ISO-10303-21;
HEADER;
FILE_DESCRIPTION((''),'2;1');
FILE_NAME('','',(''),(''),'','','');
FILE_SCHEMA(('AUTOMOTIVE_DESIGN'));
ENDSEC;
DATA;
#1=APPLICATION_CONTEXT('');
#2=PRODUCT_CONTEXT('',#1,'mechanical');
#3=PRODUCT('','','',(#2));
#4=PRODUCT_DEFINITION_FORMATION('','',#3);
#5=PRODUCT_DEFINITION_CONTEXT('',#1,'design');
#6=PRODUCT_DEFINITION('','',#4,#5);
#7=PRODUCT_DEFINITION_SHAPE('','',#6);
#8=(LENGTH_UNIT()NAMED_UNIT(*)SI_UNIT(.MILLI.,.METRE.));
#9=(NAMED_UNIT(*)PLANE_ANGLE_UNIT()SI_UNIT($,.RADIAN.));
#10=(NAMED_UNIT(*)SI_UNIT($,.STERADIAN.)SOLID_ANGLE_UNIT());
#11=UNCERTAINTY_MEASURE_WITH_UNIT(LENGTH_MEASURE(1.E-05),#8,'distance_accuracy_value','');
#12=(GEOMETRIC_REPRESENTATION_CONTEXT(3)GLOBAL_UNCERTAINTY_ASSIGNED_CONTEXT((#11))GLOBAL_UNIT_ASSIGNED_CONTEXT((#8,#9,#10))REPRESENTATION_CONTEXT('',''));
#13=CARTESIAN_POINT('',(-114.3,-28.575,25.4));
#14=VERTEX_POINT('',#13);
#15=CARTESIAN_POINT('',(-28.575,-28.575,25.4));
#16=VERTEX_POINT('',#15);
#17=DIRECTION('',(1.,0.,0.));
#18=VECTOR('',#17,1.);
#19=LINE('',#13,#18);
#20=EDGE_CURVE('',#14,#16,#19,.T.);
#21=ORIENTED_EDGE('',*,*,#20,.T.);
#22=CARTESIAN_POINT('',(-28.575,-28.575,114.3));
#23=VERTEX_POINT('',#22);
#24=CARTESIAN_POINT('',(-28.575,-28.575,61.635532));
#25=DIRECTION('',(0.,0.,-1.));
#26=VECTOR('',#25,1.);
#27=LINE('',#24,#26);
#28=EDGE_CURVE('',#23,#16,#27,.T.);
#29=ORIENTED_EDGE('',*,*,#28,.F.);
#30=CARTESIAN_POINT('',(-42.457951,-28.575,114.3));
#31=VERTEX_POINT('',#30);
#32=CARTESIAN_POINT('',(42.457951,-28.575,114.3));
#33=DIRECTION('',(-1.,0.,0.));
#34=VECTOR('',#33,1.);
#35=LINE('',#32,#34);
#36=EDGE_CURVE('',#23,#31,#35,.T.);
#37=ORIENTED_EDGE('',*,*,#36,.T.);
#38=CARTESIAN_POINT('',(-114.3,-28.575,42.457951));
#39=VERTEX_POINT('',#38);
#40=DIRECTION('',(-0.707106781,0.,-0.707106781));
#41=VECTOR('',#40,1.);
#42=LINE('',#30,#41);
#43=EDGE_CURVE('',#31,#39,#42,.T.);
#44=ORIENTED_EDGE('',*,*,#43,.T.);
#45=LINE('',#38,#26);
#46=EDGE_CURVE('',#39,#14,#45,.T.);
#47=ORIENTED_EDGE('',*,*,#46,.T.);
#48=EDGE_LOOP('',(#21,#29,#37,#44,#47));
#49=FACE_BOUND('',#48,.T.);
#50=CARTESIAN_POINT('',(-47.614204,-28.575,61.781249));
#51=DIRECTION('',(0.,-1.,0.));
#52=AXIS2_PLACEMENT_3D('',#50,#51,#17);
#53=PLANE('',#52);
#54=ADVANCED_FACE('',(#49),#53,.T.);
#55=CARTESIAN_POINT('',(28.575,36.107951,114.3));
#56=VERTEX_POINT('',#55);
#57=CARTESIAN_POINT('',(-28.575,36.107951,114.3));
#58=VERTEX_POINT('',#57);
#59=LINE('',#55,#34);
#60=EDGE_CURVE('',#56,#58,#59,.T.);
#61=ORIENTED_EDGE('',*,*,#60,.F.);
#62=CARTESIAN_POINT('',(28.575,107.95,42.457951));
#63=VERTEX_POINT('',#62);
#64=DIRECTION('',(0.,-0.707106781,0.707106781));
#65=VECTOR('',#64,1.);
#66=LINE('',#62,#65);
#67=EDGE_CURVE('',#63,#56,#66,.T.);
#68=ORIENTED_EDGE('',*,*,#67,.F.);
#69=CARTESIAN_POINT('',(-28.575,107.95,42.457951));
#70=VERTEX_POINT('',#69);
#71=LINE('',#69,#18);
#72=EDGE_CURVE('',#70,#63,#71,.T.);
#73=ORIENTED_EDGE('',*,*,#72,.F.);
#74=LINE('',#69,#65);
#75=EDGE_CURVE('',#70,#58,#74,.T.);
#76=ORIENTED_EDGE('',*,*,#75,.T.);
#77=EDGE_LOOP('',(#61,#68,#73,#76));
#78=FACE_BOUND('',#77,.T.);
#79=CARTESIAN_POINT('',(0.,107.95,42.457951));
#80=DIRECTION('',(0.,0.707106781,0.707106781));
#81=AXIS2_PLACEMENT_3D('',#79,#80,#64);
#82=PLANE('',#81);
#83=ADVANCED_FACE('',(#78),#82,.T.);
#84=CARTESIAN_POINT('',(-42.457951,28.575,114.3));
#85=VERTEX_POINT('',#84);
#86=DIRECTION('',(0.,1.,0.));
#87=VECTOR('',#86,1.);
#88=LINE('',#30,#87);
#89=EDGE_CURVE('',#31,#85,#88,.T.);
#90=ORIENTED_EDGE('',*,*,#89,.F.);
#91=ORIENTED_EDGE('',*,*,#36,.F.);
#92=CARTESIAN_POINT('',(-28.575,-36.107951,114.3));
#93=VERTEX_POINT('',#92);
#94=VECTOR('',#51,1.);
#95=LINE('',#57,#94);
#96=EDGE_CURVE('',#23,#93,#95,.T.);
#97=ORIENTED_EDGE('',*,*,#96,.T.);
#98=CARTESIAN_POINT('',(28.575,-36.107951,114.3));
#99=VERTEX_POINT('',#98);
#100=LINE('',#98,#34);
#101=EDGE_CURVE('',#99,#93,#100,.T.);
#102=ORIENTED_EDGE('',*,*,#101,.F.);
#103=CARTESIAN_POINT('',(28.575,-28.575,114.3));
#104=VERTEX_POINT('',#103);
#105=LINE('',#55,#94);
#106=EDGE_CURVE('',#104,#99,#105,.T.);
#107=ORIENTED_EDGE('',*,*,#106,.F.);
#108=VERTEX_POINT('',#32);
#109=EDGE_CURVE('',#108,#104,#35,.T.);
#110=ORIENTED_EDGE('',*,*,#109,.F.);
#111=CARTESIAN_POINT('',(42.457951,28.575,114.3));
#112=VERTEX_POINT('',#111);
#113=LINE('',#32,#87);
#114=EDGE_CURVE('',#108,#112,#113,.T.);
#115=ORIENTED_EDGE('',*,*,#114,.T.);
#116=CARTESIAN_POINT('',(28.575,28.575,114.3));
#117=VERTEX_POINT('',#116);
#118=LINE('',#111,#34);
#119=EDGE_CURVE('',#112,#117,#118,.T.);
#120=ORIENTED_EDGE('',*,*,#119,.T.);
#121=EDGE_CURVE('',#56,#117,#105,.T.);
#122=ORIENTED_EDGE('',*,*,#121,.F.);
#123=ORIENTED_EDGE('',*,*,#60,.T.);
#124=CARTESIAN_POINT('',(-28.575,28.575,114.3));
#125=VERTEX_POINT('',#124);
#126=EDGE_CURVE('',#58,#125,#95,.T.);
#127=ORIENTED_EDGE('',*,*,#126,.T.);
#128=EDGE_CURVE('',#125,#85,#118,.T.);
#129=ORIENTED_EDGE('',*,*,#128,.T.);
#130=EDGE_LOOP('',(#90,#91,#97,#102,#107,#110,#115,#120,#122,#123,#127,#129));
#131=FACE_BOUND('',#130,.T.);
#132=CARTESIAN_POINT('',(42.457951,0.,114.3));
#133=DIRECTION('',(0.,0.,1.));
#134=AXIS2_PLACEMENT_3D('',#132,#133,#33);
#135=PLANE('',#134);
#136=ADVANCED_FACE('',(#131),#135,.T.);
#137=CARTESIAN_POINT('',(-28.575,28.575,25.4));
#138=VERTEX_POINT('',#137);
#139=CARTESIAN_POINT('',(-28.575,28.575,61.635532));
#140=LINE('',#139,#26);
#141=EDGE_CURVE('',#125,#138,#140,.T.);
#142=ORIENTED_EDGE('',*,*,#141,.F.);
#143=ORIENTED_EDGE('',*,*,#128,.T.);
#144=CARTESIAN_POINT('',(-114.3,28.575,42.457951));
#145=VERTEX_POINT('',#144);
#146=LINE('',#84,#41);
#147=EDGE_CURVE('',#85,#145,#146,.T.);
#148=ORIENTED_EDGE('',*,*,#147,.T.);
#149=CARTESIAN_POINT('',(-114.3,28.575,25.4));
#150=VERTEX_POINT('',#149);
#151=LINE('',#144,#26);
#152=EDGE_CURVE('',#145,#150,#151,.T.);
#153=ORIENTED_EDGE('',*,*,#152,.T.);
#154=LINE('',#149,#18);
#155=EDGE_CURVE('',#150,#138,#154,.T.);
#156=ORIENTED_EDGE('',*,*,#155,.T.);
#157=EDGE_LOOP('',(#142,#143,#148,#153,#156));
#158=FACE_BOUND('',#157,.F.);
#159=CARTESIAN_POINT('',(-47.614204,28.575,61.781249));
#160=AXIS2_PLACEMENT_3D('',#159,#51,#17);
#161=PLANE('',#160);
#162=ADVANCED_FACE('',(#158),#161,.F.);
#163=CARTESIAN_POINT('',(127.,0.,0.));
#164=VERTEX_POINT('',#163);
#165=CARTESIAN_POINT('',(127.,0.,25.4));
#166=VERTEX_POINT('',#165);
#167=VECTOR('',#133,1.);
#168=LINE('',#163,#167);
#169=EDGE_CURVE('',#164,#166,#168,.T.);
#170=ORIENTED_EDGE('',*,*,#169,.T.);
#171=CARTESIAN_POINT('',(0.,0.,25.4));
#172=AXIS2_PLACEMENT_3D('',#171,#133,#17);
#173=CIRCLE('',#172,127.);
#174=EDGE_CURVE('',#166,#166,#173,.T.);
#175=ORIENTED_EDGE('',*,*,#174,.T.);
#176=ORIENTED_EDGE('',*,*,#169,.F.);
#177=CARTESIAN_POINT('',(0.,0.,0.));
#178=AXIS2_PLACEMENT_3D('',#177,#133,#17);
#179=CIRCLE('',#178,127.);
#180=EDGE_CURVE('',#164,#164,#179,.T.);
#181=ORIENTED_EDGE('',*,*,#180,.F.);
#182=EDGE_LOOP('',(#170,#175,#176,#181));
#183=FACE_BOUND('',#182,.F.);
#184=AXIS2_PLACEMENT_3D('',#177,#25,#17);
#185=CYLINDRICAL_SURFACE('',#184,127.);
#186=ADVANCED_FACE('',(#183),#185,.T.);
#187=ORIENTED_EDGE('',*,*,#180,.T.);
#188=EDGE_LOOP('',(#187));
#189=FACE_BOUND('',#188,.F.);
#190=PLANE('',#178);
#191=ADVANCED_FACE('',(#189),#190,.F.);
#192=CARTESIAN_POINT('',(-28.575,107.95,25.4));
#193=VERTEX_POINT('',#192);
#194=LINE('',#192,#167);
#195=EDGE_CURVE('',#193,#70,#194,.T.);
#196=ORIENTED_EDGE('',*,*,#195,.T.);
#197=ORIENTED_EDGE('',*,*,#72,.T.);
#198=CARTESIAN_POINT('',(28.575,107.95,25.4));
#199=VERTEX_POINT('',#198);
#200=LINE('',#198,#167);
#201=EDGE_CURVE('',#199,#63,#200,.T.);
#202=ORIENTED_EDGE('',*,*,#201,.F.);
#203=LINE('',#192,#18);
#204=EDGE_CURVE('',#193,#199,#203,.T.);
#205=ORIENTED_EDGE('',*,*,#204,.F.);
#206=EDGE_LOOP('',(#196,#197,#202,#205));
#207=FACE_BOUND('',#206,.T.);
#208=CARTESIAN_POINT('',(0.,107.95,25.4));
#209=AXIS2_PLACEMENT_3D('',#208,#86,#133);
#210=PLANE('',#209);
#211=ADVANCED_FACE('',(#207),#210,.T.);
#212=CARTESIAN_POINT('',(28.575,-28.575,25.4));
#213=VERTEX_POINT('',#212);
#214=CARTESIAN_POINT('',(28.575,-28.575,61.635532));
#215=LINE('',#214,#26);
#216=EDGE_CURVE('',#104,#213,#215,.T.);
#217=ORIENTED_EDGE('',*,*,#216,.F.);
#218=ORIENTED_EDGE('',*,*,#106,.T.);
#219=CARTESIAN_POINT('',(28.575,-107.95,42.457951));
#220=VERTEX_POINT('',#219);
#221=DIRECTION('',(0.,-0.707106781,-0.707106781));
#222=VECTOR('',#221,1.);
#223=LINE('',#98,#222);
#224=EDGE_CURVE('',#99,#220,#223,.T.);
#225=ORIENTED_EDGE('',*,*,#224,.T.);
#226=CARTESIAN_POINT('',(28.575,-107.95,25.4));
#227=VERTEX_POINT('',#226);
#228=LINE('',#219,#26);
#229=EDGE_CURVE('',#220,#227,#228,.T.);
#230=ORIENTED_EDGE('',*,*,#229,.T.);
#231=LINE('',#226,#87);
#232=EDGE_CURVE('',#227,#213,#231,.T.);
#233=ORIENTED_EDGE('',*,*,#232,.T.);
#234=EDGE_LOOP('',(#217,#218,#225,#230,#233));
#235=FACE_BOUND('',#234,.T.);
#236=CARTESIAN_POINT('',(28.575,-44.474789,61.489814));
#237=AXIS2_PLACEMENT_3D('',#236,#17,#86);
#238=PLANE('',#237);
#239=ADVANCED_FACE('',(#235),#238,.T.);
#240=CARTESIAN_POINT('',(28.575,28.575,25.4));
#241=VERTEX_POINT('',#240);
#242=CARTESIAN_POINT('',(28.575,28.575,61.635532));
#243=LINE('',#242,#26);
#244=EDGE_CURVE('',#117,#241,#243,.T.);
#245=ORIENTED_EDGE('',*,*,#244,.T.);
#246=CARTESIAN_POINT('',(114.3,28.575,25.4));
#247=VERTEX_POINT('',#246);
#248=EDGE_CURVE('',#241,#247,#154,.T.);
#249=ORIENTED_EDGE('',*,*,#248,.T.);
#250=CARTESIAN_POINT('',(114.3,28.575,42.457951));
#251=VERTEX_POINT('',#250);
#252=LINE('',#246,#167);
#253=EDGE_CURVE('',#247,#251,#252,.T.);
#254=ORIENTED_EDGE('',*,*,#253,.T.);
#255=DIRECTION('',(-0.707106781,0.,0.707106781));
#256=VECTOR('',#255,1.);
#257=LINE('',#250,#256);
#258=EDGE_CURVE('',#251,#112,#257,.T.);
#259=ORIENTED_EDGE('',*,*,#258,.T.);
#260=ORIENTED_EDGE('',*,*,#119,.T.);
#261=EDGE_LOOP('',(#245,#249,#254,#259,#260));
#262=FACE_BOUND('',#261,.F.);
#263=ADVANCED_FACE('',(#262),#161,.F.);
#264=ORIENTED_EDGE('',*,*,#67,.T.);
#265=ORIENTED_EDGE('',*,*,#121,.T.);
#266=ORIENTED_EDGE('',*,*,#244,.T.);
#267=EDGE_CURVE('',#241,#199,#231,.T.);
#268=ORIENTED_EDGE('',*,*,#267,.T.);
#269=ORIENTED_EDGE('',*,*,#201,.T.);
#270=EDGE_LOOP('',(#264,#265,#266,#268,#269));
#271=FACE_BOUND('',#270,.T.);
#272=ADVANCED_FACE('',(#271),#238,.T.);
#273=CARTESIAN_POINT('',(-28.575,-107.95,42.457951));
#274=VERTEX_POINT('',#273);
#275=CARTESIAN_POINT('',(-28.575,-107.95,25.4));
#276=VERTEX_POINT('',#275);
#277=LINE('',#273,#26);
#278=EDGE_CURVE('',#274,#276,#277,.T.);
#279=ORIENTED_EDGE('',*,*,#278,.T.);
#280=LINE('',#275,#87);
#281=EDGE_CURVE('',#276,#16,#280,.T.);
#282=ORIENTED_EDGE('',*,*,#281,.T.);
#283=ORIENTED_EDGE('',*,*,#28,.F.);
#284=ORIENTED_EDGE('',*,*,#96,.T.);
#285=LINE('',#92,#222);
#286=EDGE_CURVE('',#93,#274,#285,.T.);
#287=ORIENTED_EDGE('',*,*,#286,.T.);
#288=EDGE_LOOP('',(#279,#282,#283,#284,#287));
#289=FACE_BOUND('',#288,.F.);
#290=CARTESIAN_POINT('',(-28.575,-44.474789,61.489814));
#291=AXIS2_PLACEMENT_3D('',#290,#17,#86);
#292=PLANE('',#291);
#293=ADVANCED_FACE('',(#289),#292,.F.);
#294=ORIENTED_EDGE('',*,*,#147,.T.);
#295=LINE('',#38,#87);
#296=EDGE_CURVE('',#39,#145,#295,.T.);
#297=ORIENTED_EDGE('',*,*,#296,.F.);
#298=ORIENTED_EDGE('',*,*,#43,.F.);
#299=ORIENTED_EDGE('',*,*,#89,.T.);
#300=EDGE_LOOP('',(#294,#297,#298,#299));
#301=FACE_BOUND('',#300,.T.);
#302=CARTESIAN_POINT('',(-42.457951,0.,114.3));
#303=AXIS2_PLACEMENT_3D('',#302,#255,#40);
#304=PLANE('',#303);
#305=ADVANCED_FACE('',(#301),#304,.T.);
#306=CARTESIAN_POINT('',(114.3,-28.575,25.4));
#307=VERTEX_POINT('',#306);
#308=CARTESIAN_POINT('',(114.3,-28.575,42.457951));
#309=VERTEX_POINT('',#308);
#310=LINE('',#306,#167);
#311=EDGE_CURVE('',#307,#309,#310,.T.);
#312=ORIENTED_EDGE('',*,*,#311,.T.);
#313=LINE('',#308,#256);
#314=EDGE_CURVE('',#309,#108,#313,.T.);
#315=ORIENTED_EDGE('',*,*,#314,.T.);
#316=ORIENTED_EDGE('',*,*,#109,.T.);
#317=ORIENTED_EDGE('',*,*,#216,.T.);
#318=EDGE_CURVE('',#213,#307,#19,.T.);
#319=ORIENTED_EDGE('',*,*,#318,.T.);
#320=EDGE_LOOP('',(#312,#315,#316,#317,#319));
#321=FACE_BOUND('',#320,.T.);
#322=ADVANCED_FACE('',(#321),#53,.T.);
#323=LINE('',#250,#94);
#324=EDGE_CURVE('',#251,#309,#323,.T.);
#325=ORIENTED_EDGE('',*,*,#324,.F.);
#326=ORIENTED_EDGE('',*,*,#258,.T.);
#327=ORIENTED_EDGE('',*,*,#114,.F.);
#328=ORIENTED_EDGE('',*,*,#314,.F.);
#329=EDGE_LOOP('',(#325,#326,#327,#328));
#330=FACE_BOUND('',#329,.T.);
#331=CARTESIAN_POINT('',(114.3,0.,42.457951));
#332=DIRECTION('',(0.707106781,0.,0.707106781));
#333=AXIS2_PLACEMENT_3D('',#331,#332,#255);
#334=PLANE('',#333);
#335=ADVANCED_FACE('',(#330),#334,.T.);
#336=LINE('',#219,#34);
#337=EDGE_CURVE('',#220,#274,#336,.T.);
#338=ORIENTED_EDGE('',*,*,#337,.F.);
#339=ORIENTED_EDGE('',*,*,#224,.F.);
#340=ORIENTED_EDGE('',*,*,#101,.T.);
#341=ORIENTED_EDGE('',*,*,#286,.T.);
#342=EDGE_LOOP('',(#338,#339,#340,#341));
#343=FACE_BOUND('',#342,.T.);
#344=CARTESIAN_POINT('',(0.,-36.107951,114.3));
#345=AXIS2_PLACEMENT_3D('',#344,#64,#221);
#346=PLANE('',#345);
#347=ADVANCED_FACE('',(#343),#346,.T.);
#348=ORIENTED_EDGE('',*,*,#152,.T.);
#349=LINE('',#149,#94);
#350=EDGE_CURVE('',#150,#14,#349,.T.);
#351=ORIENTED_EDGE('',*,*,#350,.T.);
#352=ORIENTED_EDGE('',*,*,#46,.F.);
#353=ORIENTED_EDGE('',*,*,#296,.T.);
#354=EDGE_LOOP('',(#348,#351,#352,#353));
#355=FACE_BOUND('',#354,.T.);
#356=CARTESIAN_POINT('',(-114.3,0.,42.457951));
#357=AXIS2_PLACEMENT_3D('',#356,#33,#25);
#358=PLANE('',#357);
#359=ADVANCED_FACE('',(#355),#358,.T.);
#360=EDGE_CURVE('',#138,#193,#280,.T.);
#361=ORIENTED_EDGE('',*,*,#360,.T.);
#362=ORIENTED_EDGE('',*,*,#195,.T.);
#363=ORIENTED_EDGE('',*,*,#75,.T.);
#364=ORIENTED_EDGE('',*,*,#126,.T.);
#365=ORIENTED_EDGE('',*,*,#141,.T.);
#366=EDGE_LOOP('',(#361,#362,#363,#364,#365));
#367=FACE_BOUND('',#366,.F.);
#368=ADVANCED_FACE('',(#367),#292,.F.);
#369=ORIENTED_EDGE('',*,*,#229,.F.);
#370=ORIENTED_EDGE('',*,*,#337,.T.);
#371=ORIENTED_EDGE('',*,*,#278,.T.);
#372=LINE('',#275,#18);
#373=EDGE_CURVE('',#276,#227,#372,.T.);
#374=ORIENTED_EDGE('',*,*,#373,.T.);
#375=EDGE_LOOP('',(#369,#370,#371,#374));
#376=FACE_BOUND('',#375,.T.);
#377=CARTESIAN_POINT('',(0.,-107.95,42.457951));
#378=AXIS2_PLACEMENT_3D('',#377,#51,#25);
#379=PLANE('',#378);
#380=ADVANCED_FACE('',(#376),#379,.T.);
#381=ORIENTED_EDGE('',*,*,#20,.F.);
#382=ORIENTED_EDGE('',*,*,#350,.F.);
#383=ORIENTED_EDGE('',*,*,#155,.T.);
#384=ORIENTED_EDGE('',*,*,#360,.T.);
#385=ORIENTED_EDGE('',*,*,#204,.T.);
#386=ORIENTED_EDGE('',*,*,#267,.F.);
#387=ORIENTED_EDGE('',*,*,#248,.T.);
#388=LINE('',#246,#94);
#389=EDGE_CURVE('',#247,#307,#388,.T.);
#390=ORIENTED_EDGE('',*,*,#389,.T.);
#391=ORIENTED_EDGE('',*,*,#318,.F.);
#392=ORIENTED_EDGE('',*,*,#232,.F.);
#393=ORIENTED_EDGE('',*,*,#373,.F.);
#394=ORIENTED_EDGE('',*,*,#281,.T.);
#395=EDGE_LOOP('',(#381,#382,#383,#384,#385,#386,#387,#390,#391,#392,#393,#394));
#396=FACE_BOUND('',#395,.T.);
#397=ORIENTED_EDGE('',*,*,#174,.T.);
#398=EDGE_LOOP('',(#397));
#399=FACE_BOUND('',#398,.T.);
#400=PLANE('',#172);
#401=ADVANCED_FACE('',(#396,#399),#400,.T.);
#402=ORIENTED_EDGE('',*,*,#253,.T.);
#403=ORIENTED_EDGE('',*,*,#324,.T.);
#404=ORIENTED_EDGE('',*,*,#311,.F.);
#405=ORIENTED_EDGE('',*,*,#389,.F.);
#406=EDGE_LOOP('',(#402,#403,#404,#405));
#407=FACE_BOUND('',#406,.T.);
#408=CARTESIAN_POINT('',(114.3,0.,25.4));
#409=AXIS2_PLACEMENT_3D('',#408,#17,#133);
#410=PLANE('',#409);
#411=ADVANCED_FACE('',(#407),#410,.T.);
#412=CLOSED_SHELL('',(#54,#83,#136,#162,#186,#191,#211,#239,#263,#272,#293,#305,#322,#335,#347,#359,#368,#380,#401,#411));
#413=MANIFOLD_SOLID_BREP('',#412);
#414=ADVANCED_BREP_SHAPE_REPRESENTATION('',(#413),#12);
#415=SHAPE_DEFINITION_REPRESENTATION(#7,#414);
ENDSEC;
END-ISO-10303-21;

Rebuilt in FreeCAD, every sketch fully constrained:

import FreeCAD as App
import Part
import Sketcher
from FreeCAD import Vector
Q = App.Units.Quantity

doc = App.newDocument("Part")
body = doc.addObject("PartDesign::Body", "Body")

sketch1 = body.newObject("Sketcher::SketchObject", "Sketch")
sketch1.AttachmentSupport = (doc.getObject("XY_Plane"), [""])
sketch1.MapMode = "FlatFace"
sketch1.addGeometry(Part.Circle(Vector(0, 0, 0), Vector(0, 0, 1), 127), False)
sketch1.addConstraint([
    Sketcher.Constraint("Coincident", 0, 3, -1, 1),
    Sketcher.Constraint("Diameter", 0, Q("10 in")),
])
pad1 = body.newObject("PartDesign::Pad", "Pad")
pad1.Profile = sketch1
pad1.Length = Q("1 in")

sketch2 = body.newObject("Sketcher::SketchObject", "Sketch001")
sketch2.AttachmentSupport = (doc.getObject("YZ_Plane"), [""])
sketch2.MapMode = "FlatFace"
sketch2.addGeometry([
    Part.LineSegment(Vector(-108, 42, 0), Vector(-108, 25, 0)),
    Part.LineSegment(Vector(-108, 25, 0), Vector(108, 25, 0)),
    Part.LineSegment(Vector(108, 25, 0), Vector(108, 42, 0)),
    Part.LineSegment(Vector(108, 42, 0), Vector(36, 114, 0)),
    Part.LineSegment(Vector(36, 114, 0), Vector(-36, 114, 0)),
    Part.LineSegment(Vector(-36, 114, 0), Vector(-108, 42, 0)),
], False)
sketch2.addConstraint([
    Sketcher.Constraint("Coincident", 0, 2, 1, 1),
    Sketcher.Constraint("Coincident", 1, 2, 2, 1),
    Sketcher.Constraint("Coincident", 2, 2, 3, 1),
    Sketcher.Constraint("Coincident", 3, 2, 4, 1),
    Sketcher.Constraint("Coincident", 4, 2, 5, 1),
    Sketcher.Constraint("Coincident", 5, 2, 0, 1),
    Sketcher.Constraint("Vertical", 0),
    Sketcher.Constraint("Horizontal", 1),
    Sketcher.Constraint("Vertical", 2),
    Sketcher.Constraint("Horizontal", 4),
    Sketcher.Constraint("Symmetric", 2, 2, 5, 2, -2),
    Sketcher.Constraint("Perpendicular", 3, 5),
    Sketcher.Constraint("Equal", 3, 5),
    Sketcher.Constraint("Distance", 3, Q("4 in")),
    Sketcher.Constraint("DistanceX", 1, 1, 1, 2, Q("8.5 in")),
    Sketcher.Constraint("DistanceY", -1, 1, 0, 2, Q("1 in")),
    Sketcher.Constraint("DistanceY", -1, 1, 3, 2, Q("4.5 in")),
])
pad2 = body.newObject("PartDesign::Pad", "Pad001")
pad2.Profile = sketch2
pad2.Length = Q("2.25 in")
pad2.Midplane = True

sketch3 = body.newObject("Sketcher::SketchObject", "Sketch002")
sketch3.AttachmentSupport = (doc.getObject("XZ_Plane"), [""])
sketch3.MapMode = "FlatFace"
sketch3.addGeometry([
    Part.LineSegment(Vector(-114, 42, 0), Vector(-114, 25, 0)),
    Part.LineSegment(Vector(-114, 25, 0), Vector(114, 25, 0)),
    Part.LineSegment(Vector(114, 25, 0), Vector(114, 42, 0)),
    Part.LineSegment(Vector(114, 42, 0), Vector(42, 114, 0)),
    Part.LineSegment(Vector(42, 114, 0), Vector(-42, 114, 0)),
    Part.LineSegment(Vector(-42, 114, 0), Vector(-114, 42, 0)),
], False)
sketch3.addConstraint([
    Sketcher.Constraint("Coincident", 0, 2, 1, 1),
    Sketcher.Constraint("Coincident", 1, 2, 2, 1),
    Sketcher.Constraint("Coincident", 2, 2, 3, 1),
    Sketcher.Constraint("Coincident", 3, 2, 4, 1),
    Sketcher.Constraint("Coincident", 4, 2, 5, 1),
    Sketcher.Constraint("Coincident", 5, 2, 0, 1),
    Sketcher.Constraint("Vertical", 0),
    Sketcher.Constraint("Horizontal", 1),
    Sketcher.Constraint("Vertical", 2),
    Sketcher.Constraint("Horizontal", 4),
    Sketcher.Constraint("Symmetric", 2, 2, 5, 2, -2),
    Sketcher.Constraint("Perpendicular", 3, 5),
    Sketcher.Constraint("Equal", 3, 5),
    Sketcher.Constraint("DistanceX", 1, 1, 1, 2, Q("9 in")),
    Sketcher.Constraint("Distance", 3, Q("4 in")),
    Sketcher.Constraint("DistanceY", -1, 1, 0, 2, Q("1 in")),
    Sketcher.Constraint("DistanceY", -1, 1, 3, 2, Q("4.5 in")),
])
pad3 = body.newObject("PartDesign::Pad", "Pad002")
pad3.Profile = sketch3
pad3.Length = Q("2.25 in")
pad3.Midplane = True

doc.recompute()
